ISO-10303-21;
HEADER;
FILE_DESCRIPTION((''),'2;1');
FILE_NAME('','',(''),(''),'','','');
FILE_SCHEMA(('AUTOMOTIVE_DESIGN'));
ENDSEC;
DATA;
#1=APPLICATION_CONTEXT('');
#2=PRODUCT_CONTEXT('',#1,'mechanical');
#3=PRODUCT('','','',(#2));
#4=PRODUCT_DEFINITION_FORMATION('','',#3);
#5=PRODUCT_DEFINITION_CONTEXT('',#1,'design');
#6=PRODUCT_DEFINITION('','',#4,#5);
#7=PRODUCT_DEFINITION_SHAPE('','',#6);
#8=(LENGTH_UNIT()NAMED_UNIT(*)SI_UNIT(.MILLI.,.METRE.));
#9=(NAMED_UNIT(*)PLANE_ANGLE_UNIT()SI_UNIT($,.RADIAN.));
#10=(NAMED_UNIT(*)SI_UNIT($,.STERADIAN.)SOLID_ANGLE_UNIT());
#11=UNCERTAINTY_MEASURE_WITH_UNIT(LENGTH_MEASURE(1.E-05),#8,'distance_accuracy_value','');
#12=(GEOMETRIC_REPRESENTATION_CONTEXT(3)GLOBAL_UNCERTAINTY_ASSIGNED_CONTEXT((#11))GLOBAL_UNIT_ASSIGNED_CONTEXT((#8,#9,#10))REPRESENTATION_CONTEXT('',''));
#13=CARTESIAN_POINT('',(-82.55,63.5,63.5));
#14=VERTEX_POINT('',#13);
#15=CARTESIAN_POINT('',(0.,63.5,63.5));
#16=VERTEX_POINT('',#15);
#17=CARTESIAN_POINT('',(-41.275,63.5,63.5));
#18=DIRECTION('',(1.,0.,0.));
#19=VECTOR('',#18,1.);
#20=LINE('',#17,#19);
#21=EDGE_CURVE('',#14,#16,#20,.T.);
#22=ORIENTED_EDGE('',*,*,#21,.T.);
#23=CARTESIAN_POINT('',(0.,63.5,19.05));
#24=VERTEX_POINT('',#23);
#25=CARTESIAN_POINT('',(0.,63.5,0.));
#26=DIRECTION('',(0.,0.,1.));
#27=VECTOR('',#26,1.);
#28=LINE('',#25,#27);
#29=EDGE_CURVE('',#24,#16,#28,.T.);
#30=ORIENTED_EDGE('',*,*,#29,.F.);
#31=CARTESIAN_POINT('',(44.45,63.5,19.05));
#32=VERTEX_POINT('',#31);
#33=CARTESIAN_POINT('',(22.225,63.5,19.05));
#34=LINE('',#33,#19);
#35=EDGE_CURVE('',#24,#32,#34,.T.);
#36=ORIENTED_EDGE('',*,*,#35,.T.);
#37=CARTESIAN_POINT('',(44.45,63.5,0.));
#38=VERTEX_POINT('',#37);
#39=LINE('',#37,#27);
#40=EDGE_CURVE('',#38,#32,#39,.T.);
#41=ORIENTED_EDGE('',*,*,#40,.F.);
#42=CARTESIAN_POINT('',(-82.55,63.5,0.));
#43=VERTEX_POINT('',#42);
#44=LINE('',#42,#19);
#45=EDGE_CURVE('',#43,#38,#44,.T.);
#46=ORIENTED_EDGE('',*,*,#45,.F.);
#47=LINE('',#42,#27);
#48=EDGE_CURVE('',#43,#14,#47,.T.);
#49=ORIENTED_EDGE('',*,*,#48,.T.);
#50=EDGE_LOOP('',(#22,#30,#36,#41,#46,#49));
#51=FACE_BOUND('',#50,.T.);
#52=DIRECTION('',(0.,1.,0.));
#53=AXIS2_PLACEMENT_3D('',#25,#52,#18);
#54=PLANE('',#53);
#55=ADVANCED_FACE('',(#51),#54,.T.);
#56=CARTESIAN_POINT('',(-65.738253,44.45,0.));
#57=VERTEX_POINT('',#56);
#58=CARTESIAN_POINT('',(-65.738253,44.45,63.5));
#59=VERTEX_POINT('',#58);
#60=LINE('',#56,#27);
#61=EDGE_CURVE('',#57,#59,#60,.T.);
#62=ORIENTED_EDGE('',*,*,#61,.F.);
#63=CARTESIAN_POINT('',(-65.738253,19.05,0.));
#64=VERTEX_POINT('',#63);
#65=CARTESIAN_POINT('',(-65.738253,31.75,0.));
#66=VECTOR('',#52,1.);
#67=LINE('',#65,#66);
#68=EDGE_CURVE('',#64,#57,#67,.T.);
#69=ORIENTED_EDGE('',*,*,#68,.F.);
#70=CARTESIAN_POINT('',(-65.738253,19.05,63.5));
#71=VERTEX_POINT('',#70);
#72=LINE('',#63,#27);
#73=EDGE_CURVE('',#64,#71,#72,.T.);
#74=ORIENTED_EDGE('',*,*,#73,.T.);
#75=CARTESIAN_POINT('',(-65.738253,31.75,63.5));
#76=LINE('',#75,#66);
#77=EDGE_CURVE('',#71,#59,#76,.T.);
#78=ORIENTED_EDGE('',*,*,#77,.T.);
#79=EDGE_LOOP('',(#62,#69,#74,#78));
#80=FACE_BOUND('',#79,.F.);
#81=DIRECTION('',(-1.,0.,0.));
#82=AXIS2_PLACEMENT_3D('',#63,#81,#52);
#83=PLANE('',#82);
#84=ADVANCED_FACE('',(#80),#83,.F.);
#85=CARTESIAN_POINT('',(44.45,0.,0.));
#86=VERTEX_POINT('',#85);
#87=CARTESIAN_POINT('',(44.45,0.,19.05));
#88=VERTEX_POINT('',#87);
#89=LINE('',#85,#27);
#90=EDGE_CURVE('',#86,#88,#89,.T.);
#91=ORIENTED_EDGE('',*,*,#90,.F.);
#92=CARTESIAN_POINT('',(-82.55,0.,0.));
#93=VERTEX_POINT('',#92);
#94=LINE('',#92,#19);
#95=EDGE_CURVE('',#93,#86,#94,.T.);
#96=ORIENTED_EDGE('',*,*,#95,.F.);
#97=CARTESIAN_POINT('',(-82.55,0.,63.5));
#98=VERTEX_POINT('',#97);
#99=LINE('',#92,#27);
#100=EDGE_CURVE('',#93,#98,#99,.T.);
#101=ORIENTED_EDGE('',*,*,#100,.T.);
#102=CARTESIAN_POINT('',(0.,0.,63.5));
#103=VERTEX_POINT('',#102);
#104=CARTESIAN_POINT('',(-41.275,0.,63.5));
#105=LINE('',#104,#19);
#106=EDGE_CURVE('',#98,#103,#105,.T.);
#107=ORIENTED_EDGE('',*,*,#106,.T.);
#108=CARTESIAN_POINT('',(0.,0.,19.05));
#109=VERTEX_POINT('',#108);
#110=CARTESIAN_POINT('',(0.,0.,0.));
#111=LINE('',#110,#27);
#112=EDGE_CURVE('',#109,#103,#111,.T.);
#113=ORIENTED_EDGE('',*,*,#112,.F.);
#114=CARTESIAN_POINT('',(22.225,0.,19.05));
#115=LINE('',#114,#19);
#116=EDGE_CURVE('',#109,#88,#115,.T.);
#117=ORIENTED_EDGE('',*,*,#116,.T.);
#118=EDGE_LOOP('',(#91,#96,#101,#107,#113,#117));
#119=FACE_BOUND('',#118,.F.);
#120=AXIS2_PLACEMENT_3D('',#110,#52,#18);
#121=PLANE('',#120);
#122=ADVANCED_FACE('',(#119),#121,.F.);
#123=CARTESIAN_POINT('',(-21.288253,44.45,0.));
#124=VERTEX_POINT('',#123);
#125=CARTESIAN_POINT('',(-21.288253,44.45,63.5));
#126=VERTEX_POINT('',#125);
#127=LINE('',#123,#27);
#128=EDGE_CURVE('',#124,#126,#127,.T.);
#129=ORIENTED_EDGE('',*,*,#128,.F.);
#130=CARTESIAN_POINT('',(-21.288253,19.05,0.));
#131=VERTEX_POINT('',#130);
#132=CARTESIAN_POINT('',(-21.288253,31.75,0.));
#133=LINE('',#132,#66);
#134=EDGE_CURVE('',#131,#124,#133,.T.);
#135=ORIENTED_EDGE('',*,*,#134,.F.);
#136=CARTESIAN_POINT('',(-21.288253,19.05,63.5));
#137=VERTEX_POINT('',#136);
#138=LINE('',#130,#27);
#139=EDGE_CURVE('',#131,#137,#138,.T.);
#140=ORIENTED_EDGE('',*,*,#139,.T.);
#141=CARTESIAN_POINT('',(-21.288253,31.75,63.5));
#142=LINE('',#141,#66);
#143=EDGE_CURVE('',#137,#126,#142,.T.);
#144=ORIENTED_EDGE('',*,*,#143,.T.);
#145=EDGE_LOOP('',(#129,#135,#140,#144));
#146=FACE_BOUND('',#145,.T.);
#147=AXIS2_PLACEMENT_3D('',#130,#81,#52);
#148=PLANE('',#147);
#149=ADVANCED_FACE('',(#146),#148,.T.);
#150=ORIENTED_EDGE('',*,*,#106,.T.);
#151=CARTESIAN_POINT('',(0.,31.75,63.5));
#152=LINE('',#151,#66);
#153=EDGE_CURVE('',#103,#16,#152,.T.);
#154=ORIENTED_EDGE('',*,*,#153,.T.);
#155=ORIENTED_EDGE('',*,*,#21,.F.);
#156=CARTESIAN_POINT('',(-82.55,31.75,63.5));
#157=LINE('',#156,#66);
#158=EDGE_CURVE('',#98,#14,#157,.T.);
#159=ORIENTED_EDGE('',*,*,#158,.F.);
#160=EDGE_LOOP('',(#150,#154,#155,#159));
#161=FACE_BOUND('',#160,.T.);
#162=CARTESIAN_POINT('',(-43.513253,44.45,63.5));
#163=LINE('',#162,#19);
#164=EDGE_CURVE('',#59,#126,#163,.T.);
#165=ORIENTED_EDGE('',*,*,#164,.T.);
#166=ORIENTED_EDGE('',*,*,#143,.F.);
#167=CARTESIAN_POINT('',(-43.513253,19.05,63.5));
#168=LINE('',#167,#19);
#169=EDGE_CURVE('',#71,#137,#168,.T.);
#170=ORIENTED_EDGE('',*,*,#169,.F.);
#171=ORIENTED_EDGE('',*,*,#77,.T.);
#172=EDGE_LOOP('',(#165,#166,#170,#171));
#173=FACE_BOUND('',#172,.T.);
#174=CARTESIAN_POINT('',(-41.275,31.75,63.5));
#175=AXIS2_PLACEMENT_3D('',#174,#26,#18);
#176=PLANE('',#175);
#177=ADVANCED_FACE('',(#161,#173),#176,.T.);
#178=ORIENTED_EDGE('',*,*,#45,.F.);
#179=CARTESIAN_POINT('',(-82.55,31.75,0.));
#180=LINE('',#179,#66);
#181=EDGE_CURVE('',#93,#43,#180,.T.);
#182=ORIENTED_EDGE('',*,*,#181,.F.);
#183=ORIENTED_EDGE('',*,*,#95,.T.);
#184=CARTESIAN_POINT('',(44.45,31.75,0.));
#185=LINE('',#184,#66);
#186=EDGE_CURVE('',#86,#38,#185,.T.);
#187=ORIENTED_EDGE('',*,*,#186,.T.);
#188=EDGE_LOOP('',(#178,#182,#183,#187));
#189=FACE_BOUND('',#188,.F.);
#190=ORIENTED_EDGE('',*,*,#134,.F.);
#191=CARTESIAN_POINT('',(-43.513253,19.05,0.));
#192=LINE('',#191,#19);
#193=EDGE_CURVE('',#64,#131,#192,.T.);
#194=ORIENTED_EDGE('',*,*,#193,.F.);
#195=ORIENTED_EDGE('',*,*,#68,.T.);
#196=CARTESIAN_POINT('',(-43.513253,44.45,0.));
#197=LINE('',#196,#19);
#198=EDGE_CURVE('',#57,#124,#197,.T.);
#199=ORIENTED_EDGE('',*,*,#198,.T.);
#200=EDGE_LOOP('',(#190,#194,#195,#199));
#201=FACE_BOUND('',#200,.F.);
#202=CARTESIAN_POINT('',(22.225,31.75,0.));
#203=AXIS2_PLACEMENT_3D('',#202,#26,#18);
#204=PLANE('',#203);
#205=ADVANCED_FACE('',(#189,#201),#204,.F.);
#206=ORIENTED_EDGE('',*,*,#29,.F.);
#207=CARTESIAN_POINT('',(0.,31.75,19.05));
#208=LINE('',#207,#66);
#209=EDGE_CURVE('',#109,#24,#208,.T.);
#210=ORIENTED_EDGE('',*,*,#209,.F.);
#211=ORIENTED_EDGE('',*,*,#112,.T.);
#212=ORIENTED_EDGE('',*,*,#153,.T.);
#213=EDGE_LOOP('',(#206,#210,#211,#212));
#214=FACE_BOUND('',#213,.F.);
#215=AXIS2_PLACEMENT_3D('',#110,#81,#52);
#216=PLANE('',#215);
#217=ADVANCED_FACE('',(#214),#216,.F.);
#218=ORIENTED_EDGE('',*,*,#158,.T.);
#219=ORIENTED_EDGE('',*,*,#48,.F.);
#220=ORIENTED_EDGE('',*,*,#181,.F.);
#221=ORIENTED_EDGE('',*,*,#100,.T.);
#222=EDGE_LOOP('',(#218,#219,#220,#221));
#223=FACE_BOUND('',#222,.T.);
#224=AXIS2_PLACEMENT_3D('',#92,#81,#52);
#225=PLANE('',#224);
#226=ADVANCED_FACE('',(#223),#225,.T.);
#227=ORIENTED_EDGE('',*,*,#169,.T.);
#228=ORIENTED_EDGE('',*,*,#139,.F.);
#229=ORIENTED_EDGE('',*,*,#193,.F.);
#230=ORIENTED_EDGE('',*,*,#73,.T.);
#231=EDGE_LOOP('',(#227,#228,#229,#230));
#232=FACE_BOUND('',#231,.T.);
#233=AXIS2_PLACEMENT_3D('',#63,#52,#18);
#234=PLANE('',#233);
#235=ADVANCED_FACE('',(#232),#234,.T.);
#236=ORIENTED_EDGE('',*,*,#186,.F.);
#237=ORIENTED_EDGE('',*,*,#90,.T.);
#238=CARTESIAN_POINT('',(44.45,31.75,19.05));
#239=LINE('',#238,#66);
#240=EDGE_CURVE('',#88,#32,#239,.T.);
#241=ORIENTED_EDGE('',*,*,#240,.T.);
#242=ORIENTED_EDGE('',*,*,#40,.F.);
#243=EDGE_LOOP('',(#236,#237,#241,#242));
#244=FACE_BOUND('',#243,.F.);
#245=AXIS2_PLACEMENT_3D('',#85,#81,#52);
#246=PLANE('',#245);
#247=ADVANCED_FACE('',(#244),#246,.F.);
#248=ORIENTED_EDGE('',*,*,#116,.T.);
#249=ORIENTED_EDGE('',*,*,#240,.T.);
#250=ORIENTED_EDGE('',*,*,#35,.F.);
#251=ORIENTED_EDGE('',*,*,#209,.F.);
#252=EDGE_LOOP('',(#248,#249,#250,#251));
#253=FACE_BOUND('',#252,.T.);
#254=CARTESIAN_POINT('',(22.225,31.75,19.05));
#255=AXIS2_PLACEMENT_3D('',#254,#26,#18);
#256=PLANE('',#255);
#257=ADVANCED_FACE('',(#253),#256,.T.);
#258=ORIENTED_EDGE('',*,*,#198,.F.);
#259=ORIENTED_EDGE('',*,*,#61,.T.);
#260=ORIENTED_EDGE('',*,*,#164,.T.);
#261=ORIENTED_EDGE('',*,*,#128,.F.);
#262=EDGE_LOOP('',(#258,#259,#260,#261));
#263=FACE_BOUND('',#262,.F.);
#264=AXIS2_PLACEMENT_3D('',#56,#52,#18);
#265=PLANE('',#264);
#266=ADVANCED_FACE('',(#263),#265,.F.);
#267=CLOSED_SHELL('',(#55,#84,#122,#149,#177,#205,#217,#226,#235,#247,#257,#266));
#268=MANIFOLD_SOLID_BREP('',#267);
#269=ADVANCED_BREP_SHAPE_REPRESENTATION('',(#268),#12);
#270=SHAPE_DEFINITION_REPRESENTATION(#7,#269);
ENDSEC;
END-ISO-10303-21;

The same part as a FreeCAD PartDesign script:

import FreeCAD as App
import Part
import Sketcher
Q = App.Units.Quantity

doc = App.newDocument("Part")
body = doc.addObject("PartDesign::Body", "Body")

sketch1 = doc.addObject("Sketcher::SketchObject", "Sketch")
body.addObject(sketch1)
sketch1.AttachmentSupport = (doc.XY_Plane, [""])
sketch1.MapMode = "FlatFace"
sketch1.addGeometry([
    Part.LineSegment(App.Vector(-83, 64, 0), App.Vector(-83, 0, 0)),
    Part.LineSegment(App.Vector(-83, 0, 0), App.Vector(0, 0, 0)),
    Part.LineSegment(App.Vector(0, 0, 0), App.Vector(0, 64, 0)),
    Part.LineSegment(App.Vector(0, 64, 0), App.Vector(-83, 64, 0)),
    Part.LineSegment(App.Vector(-21, 19, 0), App.Vector(-66, 19, 0)),
    Part.LineSegment(App.Vector(-66, 19, 0), App.Vector(-66, 44, 0)),
    Part.LineSegment(App.Vector(-66, 44, 0), App.Vector(-21, 44, 0)),
    Part.LineSegment(App.Vector(-21, 44, 0), App.Vector(-21, 19, 0)),
], False)
sketch1.addConstraint([
    Sketcher.Constraint("Coincident", 0, 2, 1, 1),
    Sketcher.Constraint("Coincident", 1, 2, 2, 1),
    Sketcher.Constraint("Coincident", 2, 2, 3, 1),
    Sketcher.Constraint("Coincident", 3, 2, 0, 1),
    Sketcher.Constraint("Coincident", 4, 2, 5, 1),
    Sketcher.Constraint("Coincident", 5, 2, 6, 1),
    Sketcher.Constraint("Coincident", 6, 2, 7, 1),
    Sketcher.Constraint("Coincident", 7, 2, 4, 1),
    Sketcher.Constraint("Vertical", 0),
    Sketcher.Constraint("Horizontal", 1),
    Sketcher.Constraint("Vertical", 2),
    Sketcher.Constraint("Horizontal", 3),
    Sketcher.Constraint("Horizontal", 4),
    Sketcher.Constraint("Vertical", 5),
    Sketcher.Constraint("Horizontal", 6),
    Sketcher.Constraint("Vertical", 7),
    Sketcher.Constraint("Coincident", 1, 2, -1, 1),
    Sketcher.Constraint("DistanceY", 5, 1, 5, 2, Q("1 in")),
    Sketcher.Constraint("DistanceY", 0, 2, 0, 1, Q("2.5 in")),
    Sketcher.Constraint("DistanceX", 1, 1, 1, 2, Q("3.25 in")),
    Sketcher.Constraint("DistanceX", 4, 2, 4, 1, Q("1.75 in")),
    Sketcher.Constraint("DistanceY", -1, 1, 4, 2, Q("0.75 in")),
    Sketcher.Constraint("DistanceX", 4, 2, -1, 1, 65.738253),
])
pad1 = doc.addObject("PartDesign::Pad", "Pad")
body.addObject(pad1)
pad1.Profile = sketch1
pad1.Length = Q("2.5 in")

sketch2 = doc.addObject("Sketcher::SketchObject", "Sketch001")
body.addObject(sketch2)
sketch2.AttachmentSupport = (doc.XY_Plane, [""])
sketch2.MapMode = "FlatFace"
sketch2.addGeometry([
    Part.LineSegment(App.Vector(0, 64, 0), App.Vector(0, 0, 0)),
    Part.LineSegment(App.Vector(0, 0, 0), App.Vector(44, 0, 0)),
    Part.LineSegment(App.Vector(44, 0, 0), App.Vector(44, 64, 0)),
    Part.LineSegment(App.Vector(44, 64, 0), App.Vector(0, 64, 0)),
], False)
sketch2.addConstraint([
    Sketcher.Constraint("Coincident", 0, 2, 1, 1),
    Sketcher.Constraint("Coincident", 1, 2, 2, 1),
    Sketcher.Constraint("Coincident", 2, 2, 3, 1),
    Sketcher.Constraint("Coincident", 3, 2, 0, 1),
    Sketcher.Constraint("Vertical", 0),
    Sketcher.Constraint("Horizontal", 1),
    Sketcher.Constraint("Vertical", 2),
    Sketcher.Constraint("Horizontal", 3),
    Sketcher.Constraint("Coincident", 0, 2, -1, 1),
    Sketcher.Constraint("DistanceY", 0, 2, 0, 1, Q("2.5 in")),
    Sketcher.Constraint("DistanceX", 1, 1, 1, 2, Q("1.75 in")),
])
pad2 = doc.addObject("PartDesign::Pad", "Pad001")
body.addObject(pad2)
pad2.Profile = sketch2
pad2.Length = Q("0.75 in")

doc.recompute()
